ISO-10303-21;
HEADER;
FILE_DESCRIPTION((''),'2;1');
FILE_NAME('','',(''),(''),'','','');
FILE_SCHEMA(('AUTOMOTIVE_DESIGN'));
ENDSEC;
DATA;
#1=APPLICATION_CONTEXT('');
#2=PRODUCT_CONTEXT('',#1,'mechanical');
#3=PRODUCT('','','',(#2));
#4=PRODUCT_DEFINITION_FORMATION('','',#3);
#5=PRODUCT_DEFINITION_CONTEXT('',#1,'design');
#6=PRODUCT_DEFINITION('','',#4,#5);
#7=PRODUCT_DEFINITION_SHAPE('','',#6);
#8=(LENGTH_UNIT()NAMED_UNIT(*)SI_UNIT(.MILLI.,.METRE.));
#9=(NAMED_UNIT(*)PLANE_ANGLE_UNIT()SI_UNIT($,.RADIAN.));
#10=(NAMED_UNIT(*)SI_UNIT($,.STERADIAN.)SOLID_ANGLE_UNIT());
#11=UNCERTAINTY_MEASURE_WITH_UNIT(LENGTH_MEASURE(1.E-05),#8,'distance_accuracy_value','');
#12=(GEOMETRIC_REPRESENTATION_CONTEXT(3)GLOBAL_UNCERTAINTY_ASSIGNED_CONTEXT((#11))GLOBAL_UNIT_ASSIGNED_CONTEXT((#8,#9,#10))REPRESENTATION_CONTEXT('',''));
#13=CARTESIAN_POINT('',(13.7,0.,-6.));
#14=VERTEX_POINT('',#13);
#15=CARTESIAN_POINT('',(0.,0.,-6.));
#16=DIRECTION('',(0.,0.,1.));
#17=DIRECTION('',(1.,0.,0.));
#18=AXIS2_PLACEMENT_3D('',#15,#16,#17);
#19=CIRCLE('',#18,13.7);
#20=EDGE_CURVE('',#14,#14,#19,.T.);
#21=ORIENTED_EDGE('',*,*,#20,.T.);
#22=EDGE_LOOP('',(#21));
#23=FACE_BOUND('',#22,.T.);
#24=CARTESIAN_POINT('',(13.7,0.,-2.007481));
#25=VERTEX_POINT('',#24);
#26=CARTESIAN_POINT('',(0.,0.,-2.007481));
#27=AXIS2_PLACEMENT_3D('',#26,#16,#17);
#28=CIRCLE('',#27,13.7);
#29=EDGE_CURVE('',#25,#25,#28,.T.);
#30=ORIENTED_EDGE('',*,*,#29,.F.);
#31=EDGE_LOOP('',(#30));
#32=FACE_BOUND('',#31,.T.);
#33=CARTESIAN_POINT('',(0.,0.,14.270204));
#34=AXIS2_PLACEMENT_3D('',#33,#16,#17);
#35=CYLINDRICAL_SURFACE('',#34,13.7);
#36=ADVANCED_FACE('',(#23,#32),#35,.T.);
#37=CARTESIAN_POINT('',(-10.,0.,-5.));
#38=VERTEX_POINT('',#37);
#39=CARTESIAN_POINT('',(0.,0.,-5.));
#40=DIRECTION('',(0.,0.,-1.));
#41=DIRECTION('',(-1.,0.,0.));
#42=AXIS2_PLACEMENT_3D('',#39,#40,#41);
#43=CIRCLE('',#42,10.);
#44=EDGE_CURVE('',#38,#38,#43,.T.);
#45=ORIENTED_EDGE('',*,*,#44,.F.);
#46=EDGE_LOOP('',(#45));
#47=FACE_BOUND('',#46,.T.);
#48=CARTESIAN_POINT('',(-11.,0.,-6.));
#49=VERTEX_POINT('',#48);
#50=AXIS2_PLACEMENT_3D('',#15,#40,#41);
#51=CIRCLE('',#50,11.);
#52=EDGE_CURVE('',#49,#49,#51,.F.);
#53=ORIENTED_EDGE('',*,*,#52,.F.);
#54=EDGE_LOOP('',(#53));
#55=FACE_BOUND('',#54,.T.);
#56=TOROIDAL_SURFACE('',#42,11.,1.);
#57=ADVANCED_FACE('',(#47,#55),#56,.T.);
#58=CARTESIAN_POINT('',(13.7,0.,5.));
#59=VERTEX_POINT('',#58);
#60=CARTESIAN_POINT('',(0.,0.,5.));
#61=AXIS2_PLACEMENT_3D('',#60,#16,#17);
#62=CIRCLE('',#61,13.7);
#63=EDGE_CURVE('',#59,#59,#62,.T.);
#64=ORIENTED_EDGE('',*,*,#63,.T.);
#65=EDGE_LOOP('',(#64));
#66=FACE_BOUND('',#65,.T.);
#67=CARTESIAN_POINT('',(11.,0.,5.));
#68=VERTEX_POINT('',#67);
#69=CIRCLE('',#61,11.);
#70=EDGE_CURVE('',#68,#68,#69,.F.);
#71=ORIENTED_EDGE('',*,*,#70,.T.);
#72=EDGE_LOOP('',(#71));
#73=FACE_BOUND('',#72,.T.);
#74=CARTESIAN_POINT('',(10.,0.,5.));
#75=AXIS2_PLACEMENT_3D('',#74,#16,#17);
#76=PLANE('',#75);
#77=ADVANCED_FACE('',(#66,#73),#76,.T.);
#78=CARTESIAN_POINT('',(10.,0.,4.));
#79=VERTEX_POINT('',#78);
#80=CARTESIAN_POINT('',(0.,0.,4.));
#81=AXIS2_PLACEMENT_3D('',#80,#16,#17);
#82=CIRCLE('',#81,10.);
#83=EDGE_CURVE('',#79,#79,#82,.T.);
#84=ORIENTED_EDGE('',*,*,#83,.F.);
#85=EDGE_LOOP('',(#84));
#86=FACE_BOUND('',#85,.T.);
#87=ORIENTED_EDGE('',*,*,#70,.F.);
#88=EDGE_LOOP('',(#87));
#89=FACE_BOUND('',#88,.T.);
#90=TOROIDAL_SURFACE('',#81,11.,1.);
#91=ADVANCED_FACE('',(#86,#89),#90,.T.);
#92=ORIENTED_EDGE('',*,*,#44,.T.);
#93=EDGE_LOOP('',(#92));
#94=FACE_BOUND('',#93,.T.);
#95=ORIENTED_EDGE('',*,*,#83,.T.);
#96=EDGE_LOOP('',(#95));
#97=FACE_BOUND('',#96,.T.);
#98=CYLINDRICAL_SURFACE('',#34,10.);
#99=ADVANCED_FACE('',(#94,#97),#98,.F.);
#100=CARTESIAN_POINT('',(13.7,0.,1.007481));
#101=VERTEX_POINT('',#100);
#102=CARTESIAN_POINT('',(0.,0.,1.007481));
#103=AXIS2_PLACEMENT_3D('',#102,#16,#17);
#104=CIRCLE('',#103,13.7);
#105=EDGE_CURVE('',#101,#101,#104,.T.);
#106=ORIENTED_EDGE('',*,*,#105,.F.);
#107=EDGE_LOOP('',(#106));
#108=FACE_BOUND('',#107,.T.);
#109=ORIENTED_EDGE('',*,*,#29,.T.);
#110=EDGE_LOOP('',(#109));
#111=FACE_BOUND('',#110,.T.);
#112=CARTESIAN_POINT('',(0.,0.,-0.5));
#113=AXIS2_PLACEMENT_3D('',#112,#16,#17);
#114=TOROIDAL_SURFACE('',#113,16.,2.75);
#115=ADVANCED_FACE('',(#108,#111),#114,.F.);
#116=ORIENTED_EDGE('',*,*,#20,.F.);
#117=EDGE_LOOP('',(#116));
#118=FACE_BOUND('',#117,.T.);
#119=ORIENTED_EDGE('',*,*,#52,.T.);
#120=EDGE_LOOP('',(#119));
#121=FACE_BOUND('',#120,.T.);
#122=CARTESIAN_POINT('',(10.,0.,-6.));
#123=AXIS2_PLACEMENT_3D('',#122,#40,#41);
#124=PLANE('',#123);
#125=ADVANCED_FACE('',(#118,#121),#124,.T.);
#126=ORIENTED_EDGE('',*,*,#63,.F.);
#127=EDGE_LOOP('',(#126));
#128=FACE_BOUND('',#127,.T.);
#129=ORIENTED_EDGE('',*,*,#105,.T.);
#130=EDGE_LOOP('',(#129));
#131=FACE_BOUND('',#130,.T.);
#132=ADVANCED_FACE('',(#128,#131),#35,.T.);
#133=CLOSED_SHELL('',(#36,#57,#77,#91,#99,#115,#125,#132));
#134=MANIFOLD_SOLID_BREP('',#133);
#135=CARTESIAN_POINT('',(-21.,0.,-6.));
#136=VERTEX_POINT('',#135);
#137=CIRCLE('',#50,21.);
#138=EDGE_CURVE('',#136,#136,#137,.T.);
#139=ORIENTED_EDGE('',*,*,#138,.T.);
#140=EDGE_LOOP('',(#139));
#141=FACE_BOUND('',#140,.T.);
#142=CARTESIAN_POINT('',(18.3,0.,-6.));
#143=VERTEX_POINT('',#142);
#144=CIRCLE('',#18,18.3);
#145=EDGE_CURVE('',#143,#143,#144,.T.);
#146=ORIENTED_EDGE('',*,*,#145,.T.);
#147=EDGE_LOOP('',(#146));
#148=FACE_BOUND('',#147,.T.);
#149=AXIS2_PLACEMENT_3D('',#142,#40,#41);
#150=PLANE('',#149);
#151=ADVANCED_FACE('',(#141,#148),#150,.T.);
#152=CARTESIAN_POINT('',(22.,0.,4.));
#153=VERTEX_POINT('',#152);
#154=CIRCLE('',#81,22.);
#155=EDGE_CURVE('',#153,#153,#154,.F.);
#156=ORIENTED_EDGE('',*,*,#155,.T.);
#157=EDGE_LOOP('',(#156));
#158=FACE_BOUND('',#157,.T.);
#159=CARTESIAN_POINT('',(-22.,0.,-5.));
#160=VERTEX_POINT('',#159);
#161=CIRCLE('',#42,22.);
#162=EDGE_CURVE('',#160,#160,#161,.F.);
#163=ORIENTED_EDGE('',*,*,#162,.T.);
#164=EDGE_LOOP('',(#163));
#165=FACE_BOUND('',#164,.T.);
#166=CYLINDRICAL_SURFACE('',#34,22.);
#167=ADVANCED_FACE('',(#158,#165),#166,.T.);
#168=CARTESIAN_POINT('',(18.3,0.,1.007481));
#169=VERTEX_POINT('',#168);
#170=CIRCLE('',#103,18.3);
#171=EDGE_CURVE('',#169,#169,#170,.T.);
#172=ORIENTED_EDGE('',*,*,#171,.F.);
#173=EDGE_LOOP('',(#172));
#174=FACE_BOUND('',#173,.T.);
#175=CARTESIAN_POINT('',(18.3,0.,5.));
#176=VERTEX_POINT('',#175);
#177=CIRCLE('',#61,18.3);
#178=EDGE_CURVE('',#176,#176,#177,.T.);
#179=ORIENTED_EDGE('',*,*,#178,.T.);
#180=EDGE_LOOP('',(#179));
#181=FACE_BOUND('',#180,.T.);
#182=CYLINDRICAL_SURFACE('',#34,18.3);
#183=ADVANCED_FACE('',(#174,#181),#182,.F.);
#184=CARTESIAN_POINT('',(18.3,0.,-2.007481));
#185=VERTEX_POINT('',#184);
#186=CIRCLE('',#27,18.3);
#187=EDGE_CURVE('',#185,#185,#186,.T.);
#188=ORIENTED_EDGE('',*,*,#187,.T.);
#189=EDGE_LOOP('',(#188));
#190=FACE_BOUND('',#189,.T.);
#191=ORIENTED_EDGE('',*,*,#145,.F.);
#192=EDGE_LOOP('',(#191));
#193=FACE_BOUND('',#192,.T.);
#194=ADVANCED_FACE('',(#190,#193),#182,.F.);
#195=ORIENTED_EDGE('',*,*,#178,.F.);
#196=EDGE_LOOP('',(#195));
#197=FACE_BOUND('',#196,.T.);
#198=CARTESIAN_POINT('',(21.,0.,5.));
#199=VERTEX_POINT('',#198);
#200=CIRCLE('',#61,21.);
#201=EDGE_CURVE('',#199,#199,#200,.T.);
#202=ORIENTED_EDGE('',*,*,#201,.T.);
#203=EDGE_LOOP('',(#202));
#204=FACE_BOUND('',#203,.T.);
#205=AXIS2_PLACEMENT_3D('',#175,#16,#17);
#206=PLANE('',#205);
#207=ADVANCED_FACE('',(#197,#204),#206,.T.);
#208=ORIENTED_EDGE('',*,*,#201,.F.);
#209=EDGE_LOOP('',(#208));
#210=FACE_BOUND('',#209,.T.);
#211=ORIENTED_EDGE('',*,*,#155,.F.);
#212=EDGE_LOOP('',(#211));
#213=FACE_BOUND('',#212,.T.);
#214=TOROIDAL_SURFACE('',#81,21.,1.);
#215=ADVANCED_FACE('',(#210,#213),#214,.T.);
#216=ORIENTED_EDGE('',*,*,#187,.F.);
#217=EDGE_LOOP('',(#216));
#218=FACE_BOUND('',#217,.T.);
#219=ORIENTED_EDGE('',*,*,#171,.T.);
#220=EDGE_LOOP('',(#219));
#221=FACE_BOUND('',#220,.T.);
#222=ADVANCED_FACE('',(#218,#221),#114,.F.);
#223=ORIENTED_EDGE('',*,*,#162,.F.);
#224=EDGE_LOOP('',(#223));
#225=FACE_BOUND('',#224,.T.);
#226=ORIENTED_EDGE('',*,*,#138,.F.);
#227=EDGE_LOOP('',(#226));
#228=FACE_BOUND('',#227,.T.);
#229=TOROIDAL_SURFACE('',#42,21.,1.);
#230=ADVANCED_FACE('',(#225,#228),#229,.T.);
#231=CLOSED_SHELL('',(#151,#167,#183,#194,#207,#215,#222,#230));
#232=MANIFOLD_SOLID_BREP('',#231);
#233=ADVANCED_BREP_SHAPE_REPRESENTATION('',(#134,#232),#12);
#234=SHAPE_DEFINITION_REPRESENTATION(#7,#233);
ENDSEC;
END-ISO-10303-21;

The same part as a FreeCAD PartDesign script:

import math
import FreeCAD as App
import Part
import Sketcher

V = App.Vector
Q = App.Units.Quantity


def edges_at(feature, points):
    """Names of the edges that pass closest to the given points."""
    edges = feature.Shape.Edges
    near = lambda p: min(range(len(edges)), key=lambda i: edges[i].distToShape(Part.Vertex(*p))[0])
    return sorted({f"Edge{near(p) + 1}" for p in points})

doc = App.newDocument("Part")
body = doc.addObject("PartDesign::Body", "Body")
body.AllowCompound = True

# Sketch on XZ plane
sketch1 = body.newObject("Sketcher::SketchObject", "Sketch")
sketch1.AttachmentSupport = (doc.getObject("XZ_Plane"), [""])
sketch1.MapMode = "FlatFace"
sketch1.addGeometry([
    Part.LineSegment(V(13.7, -2, 0), V(13.7, -6, 0)),  # 0
    Part.LineSegment(V(13.7, -6, 0), V(10, -6, 0)),  # 1
    Part.LineSegment(V(10, -6, 0), V(10, 5, 0)),  # 2
    Part.LineSegment(V(10, 5, 0), V(13.7, 5, 0)),  # 3
    Part.LineSegment(V(13.7, 5, 0), V(13.7, 1, 0)),  # 4
    Part.ArcOfCircle(Part.Circle(V(16, -0.5, 0), V(0, 0, 1), 2.7), math.radians(147), math.radians(213)),  # 5
    Part.LineSegment(V(22, 5, 0), V(22, -6, 0)),  # 6
    Part.LineSegment(V(22, -6, 0), V(18.3, -6, 0)),  # 7
    Part.LineSegment(V(18.3, -6, 0), V(18.3, -2, 0)),  # 8
    Part.ArcOfCircle(Part.Circle(V(16, -0.5, 0), V(0, 0, 1), 2.7), math.radians(-33), math.radians(33)),  # 9
    Part.LineSegment(V(18.3, 1, 0), V(18.3, 5, 0)),  # 10
    Part.LineSegment(V(18.3, 5, 0), V(22, 5, 0)),  # 11
], False)
sketch1.addConstraint([
    Sketcher.Constraint("Coincident", 0, 2, 1, 1),
    Sketcher.Constraint("Coincident", 1, 2, 2, 1),
    Sketcher.Constraint("Coincident", 2, 2, 3, 1),
    Sketcher.Constraint("Coincident", 3, 2, 4, 1),
    Sketcher.Constraint("Coincident", 4, 2, 5, 1),
    Sketcher.Constraint("Coincident", 5, 2, 0, 1),
    Sketcher.Constraint("Coincident", 6, 2, 7, 1),
    Sketcher.Constraint("Coincident", 7, 2, 8, 1),
    Sketcher.Constraint("Coincident", 8, 2, 9, 1),
    Sketcher.Constraint("Coincident", 9, 2, 10, 1),
    Sketcher.Constraint("Coincident", 10, 2, 11, 1),
    Sketcher.Constraint("Coincident", 11, 2, 6, 1),
    Sketcher.Constraint("Vertical", 0),
    Sketcher.Constraint("Horizontal", 1),
    Sketcher.Constraint("Vertical", 2),
    Sketcher.Constraint("Horizontal", 3),
    Sketcher.Constraint("Vertical", 4),
    Sketcher.Constraint("Vertical", 6),
    Sketcher.Constraint("Horizontal", 7),
    Sketcher.Constraint("Vertical", 8),
    Sketcher.Constraint("Vertical", 10),
    Sketcher.Constraint("Horizontal", 11),
    Sketcher.Constraint("Coincident", 9, 3, 5, 3),
    Sketcher.Constraint("Equal", 5, 9),
    Sketcher.Constraint("Horizontal", 1, 2, 6, 2),
    Sketcher.Constraint("Horizontal", 5, 2, 8, 2),
    Sketcher.Constraint("Horizontal", 4, 2, 9, 2),
    Sketcher.Constraint("Horizontal", 3, 2, 10, 2),
    Sketcher.Constraint("Vertical", 0, 2, 3, 2),
    Sketcher.Constraint("Equal", 3, 7),
    Sketcher.Constraint("Equal", 0, 4),
    Sketcher.Constraint("DistanceY", 2, 1, 2, 2, Q("11 mm")),
    Sketcher.Constraint("Radius", 5, Q("2.75 mm")),
    Sketcher.Constraint("DistanceX", 1, 2, 1, 1, Q("3.7 mm")),
    Sketcher.Constraint("DistanceX", -1, 1, 5, 3, Q("16 mm")),
    Sketcher.Constraint("DistanceY", 0, 2, -1, 1, Q("6 mm")),
    Sketcher.Constraint("DistanceX", -1, 1, 1, 2, Q("10 mm")),
])
revolution = body.newObject("PartDesign::Revolution", "Revolution")
revolution.Profile = sketch1
revolution.ReferenceAxis = (sketch1, ["V_Axis"])
revolution.Angle = 360
doc.recompute()

fillet = body.newObject("PartDesign::Fillet", "Fillet")
fillet.Base = (revolution, edges_at(revolution, [(-22, 0, -6), (-22, 0, 5)]))
fillet.Radius = 1
doc.recompute()

fillet2 = body.newObject("PartDesign::Fillet", "Fillet001")
fillet2.Base = (fillet, edges_at(fillet, [(-10, 0, -6), (-10, 0, 5)]))
fillet2.Radius = 1

doc.recompute()
